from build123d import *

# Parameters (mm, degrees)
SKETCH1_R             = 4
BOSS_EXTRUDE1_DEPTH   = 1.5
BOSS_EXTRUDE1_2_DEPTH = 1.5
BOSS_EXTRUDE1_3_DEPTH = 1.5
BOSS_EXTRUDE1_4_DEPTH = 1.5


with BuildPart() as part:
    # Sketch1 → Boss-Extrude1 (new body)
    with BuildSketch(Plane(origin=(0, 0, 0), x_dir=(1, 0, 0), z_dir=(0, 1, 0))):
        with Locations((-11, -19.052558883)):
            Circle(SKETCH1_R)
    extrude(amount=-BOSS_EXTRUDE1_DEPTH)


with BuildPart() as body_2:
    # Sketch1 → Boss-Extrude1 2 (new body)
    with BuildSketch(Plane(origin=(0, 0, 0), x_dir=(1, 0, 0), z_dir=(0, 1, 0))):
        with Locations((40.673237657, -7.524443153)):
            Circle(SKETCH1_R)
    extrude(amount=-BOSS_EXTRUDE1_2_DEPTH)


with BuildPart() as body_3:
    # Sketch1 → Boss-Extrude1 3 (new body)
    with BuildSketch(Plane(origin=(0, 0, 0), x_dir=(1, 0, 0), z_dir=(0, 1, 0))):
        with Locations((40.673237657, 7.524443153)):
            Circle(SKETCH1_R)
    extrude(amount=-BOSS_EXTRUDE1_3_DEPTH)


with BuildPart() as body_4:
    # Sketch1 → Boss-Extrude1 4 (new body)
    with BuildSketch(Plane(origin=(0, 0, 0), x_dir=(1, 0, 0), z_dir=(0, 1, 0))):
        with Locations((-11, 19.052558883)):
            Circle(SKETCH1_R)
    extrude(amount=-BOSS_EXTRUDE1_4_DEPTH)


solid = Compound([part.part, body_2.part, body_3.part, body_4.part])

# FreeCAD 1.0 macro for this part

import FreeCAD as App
import Part
import Sketcher
from FreeCAD import Vector
Q = App.Units.Quantity

doc = App.newDocument("Part")
params = doc.addObject("Spreadsheet::Sheet", "Params")
for row, (alias, value) in enumerate([
    ("sketch1_diameter", "8 mm"),
    ("pad1_length", "1.5 mm"),
    ("sketch2_diameter", "8 mm"),
    ("pad2_length", "1.5 mm"),
    ("sketch3_diameter", "8 mm"),
    ("pad3_length", "1.5 mm"),
    ("sketch4_diameter", "8 mm"),
    ("pad4_length", "1.5 mm"),
], start=1):
    params.set(f"A{row}", alias)
    params.set(f"B{row}", "=" + value)
    params.setAlias(f"B{row}", alias)

body = doc.addObject("PartDesign::Body", "Body")

# Sketch on XZ plane
sketch1 = body.newObject("Sketcher::SketchObject", "Sketch")
sketch1.AttachmentSupport = (doc.getObject("XZ_Plane"), [""])
sketch1.MapMode = "FlatFace"
sketch1.addGeometry(Part.Circle(Vector(-11, 19.1, 0), Vector(0, 0, 1), 4), False)
sketch1.addConstraint([
    Sketcher.Constraint("Diameter", 0, Q("8 mm")),
    Sketcher.Constraint("DistanceX", 0, 3, -1, 1, Q("11 mm")),
    Sketcher.Constraint("DistanceY", -1, 1, 0, 3, Q("19.052559 mm")),
])
sketch1.setExpression("Constraints[0]", "Params.sketch1_diameter")
pad1 = body.newObject("PartDesign::Pad", "Pad")
pad1.Profile = sketch1
pad1.setExpression("Length", "Params.pad1_length")
body2 = doc.addObject("PartDesign::Body", "Body001")

# Sketch on XZ plane
sketch2 = body2.newObject("Sketcher::SketchObject", "Sketch001")
sketch2.AttachmentSupport = (doc.getObject("XZ_Plane001"), [""])
sketch2.MapMode = "FlatFace"
sketch2.addGeometry(Part.Circle(Vector(40.7, 7.5, 0), Vector(0, 0, 1), 4), False)
sketch2.addConstraint([
    Sketcher.Constraint("Diameter", 0, Q("8 mm")),
    Sketcher.Constraint("DistanceX", -1, 1, 0, 3, Q("40.673238 mm")),
    Sketcher.Constraint("DistanceY", -1, 1, 0, 3, Q("7.524443 mm")),
])
sketch2.setExpression("Constraints[0]", "Params.sketch2_diameter")
pad2 = body2.newObject("PartDesign::Pad", "Pad001")
pad2.Profile = sketch2
pad2.setExpression("Length", "Params.pad2_length")
body3 = doc.addObject("PartDesign::Body", "Body002")

# Sketch on XZ plane
sketch3 = body3.newObject("Sketcher::SketchObject", "Sketch002")
sketch3.AttachmentSupport = (doc.getObject("XZ_Plane002"), [""])
sketch3.MapMode = "FlatFace"
sketch3.addGeometry(Part.Circle(Vector(40.7, -7.5, 0), Vector(0, 0, 1), 4), False)
sketch3.addConstraint([
    Sketcher.Constraint("Diameter", 0, Q("8 mm")),
    Sketcher.Constraint("DistanceX", -1, 1, 0, 3, Q("40.673238 mm")),
    Sketcher.Constraint("DistanceY", 0, 3, -1, 1, Q("7.524443 mm")),
])
sketch3.setExpression("Constraints[0]", "Params.sketch3_diameter")
pad3 = body3.newObject("PartDesign::Pad", "Pad002")
pad3.Profile = sketch3
pad3.setExpression("Length", "Params.pad3_length")
body4 = doc.addObject("PartDesign::Body", "Body003")

# Sketch on XZ plane
sketch4 = body4.newObject("Sketcher::SketchObject", "Sketch003")
sketch4.AttachmentSupport = (doc.getObject("XZ_Plane003"), [""])
sketch4.MapMode = "FlatFace"
sketch4.addGeometry(Part.Circle(Vector(-11, -19.1, 0), Vector(0, 0, 1), 4), False)
sketch4.addConstraint([
    Sketcher.Constraint("Diameter", 0, Q("8 mm")),
    Sketcher.Constraint("DistanceX", 0, 3, -1, 1, Q("11 mm")),
    Sketcher.Constraint("DistanceY", 0, 3, -1, 1, Q("19.052559 mm")),
])
sketch4.setExpression("Constraints[0]", "Params.sketch4_diameter")
pad4 = body4.newObject("PartDesign::Pad", "Pad003")
pad4.Profile = sketch4
pad4.setExpression("Length", "Params.pad4_length")

doc.recompute()
